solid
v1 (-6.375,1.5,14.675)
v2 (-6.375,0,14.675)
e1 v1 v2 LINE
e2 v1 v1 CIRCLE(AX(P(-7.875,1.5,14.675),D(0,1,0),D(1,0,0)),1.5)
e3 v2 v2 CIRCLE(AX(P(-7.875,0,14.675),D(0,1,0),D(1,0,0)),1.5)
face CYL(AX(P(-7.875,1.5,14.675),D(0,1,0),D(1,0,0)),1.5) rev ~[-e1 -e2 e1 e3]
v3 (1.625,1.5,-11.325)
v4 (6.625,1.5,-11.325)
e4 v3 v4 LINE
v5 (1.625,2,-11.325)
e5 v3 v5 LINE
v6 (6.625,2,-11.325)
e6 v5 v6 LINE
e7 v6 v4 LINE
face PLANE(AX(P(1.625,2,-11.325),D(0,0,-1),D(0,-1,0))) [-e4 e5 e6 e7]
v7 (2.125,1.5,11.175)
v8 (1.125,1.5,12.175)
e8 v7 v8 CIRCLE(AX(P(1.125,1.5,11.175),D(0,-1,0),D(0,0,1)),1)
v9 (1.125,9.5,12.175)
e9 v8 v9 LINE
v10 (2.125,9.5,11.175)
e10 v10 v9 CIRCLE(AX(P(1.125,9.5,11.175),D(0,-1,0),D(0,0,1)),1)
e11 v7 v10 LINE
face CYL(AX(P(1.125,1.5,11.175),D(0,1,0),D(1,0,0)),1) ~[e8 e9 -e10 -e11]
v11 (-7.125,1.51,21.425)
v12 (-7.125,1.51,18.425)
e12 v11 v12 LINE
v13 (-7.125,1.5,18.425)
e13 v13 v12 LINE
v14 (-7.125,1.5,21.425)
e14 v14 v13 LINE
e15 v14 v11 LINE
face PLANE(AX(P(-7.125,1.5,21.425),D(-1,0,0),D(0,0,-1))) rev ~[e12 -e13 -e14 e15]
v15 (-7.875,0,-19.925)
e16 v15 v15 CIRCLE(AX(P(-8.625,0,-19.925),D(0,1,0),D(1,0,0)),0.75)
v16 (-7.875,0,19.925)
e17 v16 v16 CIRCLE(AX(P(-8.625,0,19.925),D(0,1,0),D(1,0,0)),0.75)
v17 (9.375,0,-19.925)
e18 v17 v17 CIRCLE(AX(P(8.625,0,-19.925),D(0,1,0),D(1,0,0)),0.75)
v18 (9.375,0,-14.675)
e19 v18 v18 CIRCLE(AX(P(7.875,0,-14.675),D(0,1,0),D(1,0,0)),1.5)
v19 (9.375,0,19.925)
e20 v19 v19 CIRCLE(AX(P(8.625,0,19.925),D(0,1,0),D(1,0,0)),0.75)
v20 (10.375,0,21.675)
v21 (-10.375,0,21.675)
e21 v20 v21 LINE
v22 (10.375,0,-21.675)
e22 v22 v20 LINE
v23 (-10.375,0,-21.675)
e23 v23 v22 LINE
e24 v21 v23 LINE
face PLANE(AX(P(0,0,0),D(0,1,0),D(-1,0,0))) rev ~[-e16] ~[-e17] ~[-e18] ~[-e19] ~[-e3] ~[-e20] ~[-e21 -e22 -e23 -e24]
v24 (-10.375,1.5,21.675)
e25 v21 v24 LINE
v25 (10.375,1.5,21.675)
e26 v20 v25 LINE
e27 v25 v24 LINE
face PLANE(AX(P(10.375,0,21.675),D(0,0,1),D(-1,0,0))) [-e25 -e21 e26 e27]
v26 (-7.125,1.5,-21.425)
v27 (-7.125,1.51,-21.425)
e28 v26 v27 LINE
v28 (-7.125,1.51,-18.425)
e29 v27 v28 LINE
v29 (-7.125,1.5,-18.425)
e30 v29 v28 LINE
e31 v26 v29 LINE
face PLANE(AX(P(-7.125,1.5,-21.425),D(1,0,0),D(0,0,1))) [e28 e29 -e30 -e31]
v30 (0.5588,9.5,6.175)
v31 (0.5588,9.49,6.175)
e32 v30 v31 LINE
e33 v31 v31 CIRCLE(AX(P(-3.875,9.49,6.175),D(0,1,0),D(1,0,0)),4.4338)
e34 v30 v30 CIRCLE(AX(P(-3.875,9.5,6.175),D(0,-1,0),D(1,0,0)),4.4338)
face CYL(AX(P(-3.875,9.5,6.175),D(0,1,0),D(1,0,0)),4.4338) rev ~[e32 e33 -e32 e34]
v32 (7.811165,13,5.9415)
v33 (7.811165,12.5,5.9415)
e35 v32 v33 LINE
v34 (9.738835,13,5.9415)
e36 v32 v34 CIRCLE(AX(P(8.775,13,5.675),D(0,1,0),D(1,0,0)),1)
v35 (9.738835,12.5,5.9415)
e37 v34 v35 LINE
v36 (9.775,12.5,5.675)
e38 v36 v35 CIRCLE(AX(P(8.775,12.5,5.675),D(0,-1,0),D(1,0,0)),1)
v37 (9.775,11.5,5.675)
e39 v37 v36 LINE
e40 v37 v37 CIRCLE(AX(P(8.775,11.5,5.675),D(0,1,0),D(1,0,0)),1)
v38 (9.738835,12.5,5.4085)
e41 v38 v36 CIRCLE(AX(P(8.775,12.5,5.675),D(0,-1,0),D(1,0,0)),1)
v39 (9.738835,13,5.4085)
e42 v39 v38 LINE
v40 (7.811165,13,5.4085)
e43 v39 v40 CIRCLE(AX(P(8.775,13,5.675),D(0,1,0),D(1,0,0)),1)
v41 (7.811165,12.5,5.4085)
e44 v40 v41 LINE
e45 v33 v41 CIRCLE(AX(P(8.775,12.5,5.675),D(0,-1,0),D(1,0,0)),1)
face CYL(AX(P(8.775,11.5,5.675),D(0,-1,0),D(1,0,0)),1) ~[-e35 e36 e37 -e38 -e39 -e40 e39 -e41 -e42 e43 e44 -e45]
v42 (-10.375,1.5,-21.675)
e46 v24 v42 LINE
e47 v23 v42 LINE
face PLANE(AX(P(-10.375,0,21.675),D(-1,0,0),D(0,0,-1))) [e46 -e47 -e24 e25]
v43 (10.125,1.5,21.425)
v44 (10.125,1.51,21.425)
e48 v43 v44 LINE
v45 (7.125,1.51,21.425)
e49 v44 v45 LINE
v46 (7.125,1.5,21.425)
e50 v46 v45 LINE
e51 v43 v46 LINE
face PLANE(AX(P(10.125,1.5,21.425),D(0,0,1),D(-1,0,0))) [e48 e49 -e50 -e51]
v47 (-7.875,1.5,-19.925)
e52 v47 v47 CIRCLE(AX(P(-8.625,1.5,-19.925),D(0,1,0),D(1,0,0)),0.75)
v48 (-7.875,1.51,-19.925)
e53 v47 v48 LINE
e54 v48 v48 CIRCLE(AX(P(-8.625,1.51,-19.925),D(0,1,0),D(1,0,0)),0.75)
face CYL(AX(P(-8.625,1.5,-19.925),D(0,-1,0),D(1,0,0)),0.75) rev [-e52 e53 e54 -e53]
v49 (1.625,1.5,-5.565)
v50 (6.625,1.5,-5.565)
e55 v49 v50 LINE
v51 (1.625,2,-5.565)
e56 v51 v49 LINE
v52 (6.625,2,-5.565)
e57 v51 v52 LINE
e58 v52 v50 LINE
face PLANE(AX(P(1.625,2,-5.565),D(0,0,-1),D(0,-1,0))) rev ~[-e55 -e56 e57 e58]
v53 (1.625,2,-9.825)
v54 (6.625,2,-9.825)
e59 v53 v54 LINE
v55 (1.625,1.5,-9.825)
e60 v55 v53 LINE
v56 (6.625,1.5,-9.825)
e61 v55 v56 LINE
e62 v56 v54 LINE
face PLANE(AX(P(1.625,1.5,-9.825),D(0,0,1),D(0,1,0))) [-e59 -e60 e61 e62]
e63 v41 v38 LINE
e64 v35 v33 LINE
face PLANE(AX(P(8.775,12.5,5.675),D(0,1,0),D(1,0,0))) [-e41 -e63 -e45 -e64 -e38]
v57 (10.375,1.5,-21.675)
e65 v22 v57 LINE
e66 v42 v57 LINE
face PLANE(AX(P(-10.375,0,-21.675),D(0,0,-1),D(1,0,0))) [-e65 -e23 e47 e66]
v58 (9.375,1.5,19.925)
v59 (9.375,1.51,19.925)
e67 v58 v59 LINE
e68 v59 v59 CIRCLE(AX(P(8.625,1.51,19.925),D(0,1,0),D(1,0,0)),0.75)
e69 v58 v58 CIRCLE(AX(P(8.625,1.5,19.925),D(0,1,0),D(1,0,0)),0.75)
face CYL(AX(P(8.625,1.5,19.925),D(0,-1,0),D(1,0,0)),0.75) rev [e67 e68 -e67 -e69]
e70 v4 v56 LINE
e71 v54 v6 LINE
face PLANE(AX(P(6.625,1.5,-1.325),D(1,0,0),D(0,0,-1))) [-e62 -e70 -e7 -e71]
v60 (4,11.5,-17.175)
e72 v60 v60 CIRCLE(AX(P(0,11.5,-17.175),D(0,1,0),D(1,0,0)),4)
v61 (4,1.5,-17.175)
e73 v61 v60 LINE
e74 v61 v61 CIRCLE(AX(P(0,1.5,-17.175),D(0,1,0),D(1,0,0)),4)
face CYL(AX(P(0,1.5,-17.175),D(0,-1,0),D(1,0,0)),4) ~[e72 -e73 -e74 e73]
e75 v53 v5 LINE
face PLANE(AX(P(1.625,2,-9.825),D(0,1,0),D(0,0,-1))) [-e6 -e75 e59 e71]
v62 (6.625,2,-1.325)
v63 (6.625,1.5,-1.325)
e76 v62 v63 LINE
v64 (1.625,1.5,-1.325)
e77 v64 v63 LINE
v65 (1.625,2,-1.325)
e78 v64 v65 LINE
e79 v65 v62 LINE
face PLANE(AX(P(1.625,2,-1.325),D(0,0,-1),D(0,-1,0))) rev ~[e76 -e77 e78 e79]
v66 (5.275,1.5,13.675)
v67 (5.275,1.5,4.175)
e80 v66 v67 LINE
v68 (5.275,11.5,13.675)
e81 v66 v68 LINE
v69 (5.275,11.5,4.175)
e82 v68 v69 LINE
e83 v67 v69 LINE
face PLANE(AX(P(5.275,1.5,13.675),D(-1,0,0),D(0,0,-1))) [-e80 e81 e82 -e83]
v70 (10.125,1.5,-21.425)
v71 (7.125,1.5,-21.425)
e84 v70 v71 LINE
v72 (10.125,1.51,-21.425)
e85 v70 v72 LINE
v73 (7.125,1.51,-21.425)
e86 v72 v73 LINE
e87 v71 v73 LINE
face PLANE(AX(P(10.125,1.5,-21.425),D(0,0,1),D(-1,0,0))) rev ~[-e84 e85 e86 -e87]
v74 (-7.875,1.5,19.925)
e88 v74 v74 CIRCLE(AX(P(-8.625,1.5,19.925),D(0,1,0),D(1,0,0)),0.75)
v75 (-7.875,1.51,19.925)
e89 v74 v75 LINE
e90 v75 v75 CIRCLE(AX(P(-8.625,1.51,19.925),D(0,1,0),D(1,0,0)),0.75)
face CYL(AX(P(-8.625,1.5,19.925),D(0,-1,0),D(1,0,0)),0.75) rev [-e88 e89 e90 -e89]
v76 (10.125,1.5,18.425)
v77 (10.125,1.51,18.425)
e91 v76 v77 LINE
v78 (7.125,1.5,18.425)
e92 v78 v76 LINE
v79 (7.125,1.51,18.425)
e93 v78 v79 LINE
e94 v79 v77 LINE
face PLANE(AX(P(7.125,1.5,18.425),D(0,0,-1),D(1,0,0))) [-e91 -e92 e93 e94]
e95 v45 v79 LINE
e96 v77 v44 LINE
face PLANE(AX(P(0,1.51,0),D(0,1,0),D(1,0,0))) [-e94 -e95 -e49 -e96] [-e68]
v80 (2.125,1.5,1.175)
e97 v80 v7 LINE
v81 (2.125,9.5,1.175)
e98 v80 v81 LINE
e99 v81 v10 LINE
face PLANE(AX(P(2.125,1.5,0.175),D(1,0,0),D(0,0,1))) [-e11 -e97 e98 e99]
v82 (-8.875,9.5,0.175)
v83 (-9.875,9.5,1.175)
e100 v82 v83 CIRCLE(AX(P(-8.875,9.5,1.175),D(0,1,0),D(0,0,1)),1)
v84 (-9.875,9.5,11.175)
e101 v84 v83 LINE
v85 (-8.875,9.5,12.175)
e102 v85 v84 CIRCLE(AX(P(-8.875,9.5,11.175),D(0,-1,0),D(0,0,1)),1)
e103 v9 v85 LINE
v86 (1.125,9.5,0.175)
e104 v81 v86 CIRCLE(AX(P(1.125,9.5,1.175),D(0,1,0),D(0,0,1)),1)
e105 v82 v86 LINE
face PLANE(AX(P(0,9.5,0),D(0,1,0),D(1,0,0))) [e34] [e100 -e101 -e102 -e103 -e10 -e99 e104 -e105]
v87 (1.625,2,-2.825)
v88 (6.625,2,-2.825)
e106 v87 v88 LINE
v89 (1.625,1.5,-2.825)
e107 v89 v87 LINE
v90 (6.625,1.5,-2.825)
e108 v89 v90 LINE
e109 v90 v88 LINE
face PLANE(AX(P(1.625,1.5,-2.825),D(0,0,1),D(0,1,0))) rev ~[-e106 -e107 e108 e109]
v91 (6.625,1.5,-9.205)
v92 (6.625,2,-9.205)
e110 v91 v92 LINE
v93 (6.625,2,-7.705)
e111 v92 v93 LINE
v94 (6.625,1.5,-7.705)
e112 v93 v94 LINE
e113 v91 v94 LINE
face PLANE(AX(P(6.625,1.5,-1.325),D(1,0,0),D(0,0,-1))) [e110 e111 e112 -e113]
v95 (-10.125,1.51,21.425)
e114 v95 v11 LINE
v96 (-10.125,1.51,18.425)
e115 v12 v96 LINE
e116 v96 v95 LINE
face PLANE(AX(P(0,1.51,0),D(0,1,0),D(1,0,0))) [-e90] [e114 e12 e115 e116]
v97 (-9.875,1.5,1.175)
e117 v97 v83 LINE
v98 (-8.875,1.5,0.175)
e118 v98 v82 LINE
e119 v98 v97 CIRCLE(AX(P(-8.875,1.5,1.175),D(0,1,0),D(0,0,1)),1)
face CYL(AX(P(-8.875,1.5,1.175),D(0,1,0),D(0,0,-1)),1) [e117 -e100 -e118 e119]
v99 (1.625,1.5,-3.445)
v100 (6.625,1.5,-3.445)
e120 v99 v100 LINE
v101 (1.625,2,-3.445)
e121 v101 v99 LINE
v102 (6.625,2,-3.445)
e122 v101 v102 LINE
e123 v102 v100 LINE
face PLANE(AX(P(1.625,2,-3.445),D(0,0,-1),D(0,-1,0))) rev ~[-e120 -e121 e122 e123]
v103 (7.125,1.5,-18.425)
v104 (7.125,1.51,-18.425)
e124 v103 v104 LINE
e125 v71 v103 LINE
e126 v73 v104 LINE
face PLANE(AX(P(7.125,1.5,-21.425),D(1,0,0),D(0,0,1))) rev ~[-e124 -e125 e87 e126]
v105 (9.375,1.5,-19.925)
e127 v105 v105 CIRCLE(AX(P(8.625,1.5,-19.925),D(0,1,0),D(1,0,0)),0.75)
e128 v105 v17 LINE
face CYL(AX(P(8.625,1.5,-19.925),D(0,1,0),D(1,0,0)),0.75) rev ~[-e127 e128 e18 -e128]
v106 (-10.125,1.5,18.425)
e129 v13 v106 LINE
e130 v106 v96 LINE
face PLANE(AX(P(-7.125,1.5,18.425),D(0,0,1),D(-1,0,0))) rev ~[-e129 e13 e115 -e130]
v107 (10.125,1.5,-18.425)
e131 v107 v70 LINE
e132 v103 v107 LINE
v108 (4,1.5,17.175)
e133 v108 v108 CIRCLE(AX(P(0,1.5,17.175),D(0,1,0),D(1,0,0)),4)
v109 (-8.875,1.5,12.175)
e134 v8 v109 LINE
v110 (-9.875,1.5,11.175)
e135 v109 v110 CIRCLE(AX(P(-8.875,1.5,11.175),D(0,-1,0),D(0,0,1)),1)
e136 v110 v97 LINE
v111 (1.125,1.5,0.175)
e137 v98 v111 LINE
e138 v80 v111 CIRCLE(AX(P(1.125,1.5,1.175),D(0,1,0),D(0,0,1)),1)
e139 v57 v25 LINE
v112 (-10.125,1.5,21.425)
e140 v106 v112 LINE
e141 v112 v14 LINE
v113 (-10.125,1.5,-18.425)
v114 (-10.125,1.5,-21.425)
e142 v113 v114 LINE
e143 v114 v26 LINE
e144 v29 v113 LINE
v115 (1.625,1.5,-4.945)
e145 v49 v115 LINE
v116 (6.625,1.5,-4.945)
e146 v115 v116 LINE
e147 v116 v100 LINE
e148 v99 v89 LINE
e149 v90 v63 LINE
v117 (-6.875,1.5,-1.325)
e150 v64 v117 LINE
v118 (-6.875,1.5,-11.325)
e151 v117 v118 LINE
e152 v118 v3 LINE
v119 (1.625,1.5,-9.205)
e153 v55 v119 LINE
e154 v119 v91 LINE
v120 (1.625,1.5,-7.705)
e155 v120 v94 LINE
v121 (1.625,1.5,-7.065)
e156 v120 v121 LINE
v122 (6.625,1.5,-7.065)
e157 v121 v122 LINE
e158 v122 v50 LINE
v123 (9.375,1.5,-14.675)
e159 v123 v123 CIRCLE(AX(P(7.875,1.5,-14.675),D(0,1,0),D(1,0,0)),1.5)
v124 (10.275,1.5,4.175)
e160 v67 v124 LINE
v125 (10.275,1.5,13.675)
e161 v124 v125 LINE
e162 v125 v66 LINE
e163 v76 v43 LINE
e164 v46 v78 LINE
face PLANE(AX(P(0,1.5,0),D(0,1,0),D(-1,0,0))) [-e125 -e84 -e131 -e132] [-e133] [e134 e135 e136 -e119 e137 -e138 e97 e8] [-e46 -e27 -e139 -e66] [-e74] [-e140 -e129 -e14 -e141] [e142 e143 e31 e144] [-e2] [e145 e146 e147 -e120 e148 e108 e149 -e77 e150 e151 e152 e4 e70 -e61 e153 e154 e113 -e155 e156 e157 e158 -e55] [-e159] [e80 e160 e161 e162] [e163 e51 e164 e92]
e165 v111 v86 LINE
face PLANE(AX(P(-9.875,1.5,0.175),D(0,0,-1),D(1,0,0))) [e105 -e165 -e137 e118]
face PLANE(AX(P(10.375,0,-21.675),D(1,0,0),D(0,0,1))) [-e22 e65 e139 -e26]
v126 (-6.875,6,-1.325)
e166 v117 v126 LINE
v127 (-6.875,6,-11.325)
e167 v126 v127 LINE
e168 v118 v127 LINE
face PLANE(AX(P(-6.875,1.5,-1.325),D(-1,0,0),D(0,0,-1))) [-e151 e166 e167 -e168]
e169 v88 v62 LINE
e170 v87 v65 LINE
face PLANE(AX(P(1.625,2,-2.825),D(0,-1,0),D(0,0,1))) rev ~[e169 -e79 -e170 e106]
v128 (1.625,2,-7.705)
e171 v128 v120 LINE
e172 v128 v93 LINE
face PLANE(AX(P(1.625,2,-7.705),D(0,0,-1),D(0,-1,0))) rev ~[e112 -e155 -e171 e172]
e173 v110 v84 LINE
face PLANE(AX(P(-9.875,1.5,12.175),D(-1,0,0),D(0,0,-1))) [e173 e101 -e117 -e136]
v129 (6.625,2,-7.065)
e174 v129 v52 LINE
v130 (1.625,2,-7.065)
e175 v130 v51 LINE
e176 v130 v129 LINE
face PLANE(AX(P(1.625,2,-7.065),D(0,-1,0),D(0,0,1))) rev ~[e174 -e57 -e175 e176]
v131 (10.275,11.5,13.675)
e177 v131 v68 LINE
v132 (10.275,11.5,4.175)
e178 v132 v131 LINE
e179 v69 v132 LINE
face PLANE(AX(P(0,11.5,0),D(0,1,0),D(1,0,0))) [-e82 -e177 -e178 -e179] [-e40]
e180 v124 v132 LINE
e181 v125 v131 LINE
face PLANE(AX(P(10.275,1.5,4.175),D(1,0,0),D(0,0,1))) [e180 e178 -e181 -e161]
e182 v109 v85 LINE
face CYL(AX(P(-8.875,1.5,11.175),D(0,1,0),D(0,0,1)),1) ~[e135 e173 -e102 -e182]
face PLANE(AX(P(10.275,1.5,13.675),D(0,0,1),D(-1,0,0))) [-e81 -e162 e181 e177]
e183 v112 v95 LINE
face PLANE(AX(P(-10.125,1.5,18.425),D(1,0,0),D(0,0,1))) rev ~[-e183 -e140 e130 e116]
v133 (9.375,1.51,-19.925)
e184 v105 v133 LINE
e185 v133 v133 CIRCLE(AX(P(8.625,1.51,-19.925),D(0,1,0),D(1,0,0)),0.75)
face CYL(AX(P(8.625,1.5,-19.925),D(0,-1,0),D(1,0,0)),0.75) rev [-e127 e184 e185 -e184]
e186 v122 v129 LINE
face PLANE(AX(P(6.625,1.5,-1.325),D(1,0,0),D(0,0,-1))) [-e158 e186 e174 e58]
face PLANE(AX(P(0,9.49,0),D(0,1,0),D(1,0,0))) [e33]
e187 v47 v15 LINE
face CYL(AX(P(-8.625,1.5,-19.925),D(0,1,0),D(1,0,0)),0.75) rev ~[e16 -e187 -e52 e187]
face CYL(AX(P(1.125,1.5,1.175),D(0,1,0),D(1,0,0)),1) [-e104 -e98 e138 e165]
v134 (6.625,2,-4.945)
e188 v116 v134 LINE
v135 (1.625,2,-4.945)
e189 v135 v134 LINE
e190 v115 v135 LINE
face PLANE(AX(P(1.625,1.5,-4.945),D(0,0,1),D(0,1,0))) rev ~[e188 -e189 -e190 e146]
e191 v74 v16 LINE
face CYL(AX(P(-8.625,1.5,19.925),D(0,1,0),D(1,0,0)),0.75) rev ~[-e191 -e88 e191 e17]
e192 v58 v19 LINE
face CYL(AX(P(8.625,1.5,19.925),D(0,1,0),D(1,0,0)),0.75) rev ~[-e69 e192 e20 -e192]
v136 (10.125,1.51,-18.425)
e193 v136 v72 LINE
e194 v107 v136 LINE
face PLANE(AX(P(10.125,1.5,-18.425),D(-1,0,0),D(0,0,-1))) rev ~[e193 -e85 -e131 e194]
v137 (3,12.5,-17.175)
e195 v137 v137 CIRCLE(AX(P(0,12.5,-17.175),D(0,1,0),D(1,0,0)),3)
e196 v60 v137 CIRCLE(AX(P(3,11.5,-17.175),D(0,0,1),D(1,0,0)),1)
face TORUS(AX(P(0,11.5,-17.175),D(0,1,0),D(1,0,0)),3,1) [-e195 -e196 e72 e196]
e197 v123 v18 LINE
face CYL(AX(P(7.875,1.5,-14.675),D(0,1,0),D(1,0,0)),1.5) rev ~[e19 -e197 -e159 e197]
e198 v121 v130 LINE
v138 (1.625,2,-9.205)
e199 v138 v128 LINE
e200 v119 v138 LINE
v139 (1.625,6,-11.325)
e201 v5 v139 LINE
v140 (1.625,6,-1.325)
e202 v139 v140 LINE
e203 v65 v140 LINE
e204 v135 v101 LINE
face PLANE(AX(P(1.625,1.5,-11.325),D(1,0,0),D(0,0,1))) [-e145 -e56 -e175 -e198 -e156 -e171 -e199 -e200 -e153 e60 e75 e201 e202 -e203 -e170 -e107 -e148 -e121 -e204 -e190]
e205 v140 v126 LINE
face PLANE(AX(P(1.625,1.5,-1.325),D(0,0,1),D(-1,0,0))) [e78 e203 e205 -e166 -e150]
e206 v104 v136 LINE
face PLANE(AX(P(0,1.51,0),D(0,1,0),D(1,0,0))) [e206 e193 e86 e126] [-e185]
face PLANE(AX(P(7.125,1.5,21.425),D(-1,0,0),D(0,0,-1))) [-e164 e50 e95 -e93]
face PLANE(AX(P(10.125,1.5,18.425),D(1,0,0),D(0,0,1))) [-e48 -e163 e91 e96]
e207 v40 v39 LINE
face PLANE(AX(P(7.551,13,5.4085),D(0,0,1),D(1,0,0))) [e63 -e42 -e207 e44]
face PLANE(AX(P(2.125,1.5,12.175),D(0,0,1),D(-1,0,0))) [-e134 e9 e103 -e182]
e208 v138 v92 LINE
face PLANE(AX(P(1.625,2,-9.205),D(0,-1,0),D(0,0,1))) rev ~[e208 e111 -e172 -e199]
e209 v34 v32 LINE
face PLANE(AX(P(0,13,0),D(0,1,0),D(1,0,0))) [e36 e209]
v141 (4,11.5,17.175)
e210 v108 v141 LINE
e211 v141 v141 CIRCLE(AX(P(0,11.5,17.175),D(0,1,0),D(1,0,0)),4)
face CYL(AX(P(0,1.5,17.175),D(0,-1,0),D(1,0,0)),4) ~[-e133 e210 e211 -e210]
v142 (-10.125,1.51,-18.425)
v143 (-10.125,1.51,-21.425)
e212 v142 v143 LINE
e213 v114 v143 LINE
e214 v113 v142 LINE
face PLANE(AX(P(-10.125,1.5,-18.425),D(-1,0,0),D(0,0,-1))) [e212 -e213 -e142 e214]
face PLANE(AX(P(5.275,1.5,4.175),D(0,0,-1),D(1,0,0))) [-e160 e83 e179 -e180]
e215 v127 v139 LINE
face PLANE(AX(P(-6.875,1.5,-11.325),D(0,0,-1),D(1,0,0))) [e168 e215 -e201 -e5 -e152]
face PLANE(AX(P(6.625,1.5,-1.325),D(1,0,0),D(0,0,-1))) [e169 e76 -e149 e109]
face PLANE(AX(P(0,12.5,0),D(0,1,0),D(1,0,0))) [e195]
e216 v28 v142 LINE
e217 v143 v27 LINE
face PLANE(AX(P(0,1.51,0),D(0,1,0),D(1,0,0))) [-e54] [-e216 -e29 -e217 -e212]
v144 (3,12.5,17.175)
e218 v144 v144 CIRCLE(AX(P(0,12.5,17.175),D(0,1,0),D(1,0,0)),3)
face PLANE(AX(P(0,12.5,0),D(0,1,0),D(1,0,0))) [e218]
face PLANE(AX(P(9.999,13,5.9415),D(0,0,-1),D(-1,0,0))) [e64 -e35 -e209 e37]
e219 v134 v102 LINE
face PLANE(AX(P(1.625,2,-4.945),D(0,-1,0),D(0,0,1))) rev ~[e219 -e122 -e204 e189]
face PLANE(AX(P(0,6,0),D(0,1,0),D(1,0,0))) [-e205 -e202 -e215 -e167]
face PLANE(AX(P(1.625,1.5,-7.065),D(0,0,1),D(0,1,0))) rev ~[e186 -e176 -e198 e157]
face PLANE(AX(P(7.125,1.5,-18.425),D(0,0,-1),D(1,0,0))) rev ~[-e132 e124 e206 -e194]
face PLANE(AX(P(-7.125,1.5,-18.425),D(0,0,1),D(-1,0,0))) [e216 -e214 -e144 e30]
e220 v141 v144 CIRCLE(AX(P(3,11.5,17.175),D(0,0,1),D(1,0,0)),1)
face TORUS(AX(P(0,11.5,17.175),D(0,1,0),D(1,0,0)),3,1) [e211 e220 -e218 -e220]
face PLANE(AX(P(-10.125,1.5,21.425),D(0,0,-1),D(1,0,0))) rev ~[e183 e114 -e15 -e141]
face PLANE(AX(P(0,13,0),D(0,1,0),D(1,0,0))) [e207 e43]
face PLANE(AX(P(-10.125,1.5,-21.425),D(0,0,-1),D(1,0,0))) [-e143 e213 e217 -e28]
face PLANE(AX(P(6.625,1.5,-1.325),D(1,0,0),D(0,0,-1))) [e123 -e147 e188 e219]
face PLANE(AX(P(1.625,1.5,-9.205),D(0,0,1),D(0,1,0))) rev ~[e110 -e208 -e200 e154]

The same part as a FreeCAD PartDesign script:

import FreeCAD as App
import Part
import Sketcher


def edges_at(feature, points):
    """Names of the edges that pass closest to the given points."""
    edges = feature.Shape.Edges
    near = lambda p: min(range(len(edges)), key=lambda i: edges[i].distToShape(Part.Vertex(*p))[0])
    return sorted({f"Edge{near(p) + 1}" for p in points})

doc = App.newDocument("Part")
body = doc.addObject("PartDesign::Body", "Body")

# Sketch on XZ plane
sketch1 = doc.addObject("Sketcher::SketchObject", "Sketch")
body.addObject(sketch1)
sketch1.AttachmentSupport = (doc.XZ_Plane, [""])
sketch1.MapMode = "FlatFace"
sketch1.addGeometry(Part.LineSegment(App.Vector(-10, 22, 0), App.Vector(10, 22, 0)), False)
sketch1.addGeometry(Part.LineSegment(App.Vector(10, 22, 0), App.Vector(10, -22, 0)), False)
sketch1.addGeometry(Part.LineSegment(App.Vector(10, -22, 0), App.Vector(-10, -22, 0)), False)
sketch1.addGeometry(Part.LineSegment(App.Vector(-10, -22, 0), App.Vector(-10, 22, 0)), False)
sketch1.addConstraint(Sketcher.Constraint("Coincident", 0, 2, 1, 1))
sketch1.addConstraint(Sketcher.Constraint("Coincident", 1, 2, 2, 1))
sketch1.addConstraint(Sketcher.Constraint("Coincident", 2, 2, 3, 1))
sketch1.addConstraint(Sketcher.Constraint("Coincident", 3, 2, 0, 1))
sketch1.addConstraint(Sketcher.Constraint("Horizontal", 0))
sketch1.addConstraint(Sketcher.Constraint("Vertical", 1))
sketch1.addConstraint(Sketcher.Constraint("Horizontal", 2))
sketch1.addConstraint(Sketcher.Constraint("Vertical", 3))
sketch1.addConstraint(Sketcher.Constraint("Symmetric", 0, 2, 2, 2, -1, 1))
sketch1.addConstraint(Sketcher.Constraint("DistanceX", 0, 1, 0, 2, 20.75))
sketch1.addConstraint(Sketcher.Constraint("DistanceY", 1, 2, 1, 1, 43.35))
pad1 = doc.addObject("PartDesign::Pad", "Pad")
body.addObject(pad1)
pad1.Profile = sketch1
pad1.Length = 1.5
pad1.Reversed = True

# Sketch on XZ plane
sketch2 = doc.addObject("Sketcher::SketchObject", "Sketch001")
body.addObject(sketch2)
sketch2.AttachmentSupport = (doc.XZ_Plane, [""])
sketch2.MapMode = "FlatFace"
sketch2.AttachmentOffset = App.Placement(App.Vector(0, 0, -1.5), App.Rotation())
sketch2.addGeometry(Part.Circle(App.Vector(-8.6, 19.9, 0), App.Vector(0, 0, 1), 0.8), False)
sketch2.addGeometry(Part.Circle(App.Vector(-8.6, -19.9, 0), App.Vector(0, 0, 1), 0.8), False)
sketch2.addGeometry(Part.Circle(App.Vector(8.6, 19.9, 0), App.Vector(0, 0, 1), 0.8), False)
sketch2.addGeometry(Part.Circle(App.Vector(8.6, -19.9, 0), App.Vector(0, 0, 1), 0.8), False)
sketch2.addConstraint(Sketcher.Constraint("Equal", 0, 1))
sketch2.addConstraint(Sketcher.Constraint("Equal", 1, 2))
sketch2.addConstraint(Sketcher.Constraint("Equal", 2, 3))
sketch2.addConstraint(Sketcher.Constraint("Symmetric", 1, 3, 2, 3, -1, 1))
sketch2.addConstraint(Sketcher.Constraint("Symmetric", 0, 3, 3, 3, -1, 1))
sketch2.addConstraint(Sketcher.Constraint("Symmetric", 0, 3, 2, 3, -2))
sketch2.addConstraint(Sketcher.Constraint("Diameter", 0, 1.5))
sketch2.addConstraint(Sketcher.Constraint("DistanceY", 1, 3, 0, 3, 39.85))
sketch2.addConstraint(Sketcher.Constraint("DistanceX", 0, 3, 2, 3, 17.25))
pocket1 = doc.addObject("PartDesign::Pocket", "Pocket")
body.addObject(pocket1)
pocket1.Profile = sketch2
pocket1.Length = 1.5
pocket1.Reversed = True

# Sketch on XZ plane
sketch3 = doc.addObject("Sketcher::SketchObject", "Sketch002")
body.addObject(sketch3)
sketch3.AttachmentSupport = (doc.XZ_Plane, [""])
sketch3.MapMode = "FlatFace"
sketch3.AttachmentOffset = App.Placement(App.Vector(0, 0, -1.5), App.Rotation())
sketch3.addGeometry(Part.Circle(App.Vector(7.9, -14.7, 0), App.Vector(0, 0, 1), 1.5), False)
sketch3.addGeometry(Part.Circle(App.Vector(-7.9, 14.7, 0), App.Vector(0, 0, 1), 1.5), False)
sketch3.addConstraint(Sketcher.Constraint("Equal", 0, 1))
sketch3.addConstraint(Sketcher.Constraint("Symmetric", 0, 3, 1, 3, -1, 1))
sketch3.addConstraint(Sketcher.Constraint("Diameter", 0, 3.0))
sketch3.addConstraint(Sketcher.Constraint("DistanceX", 1, 3, 0, 3, 15.75))
sketch3.addConstraint(Sketcher.Constraint("DistanceY", 0, 3, 1, 3, 29.35))
pocket2 = doc.addObject("PartDesign::Pocket", "Pocket001")
body.addObject(pocket2)
pocket2.Profile = sketch3
pocket2.Type = "UpToFirst"
pocket2.Reversed = True

# Sketch on XZ plane
sketch4 = doc.addObject("Sketcher::SketchObject", "Sketch003")
body.addObject(sketch4)
sketch4.AttachmentSupport = (doc.XZ_Plane, [""])
sketch4.MapMode = "FlatFace"
sketch4.AttachmentOffset = App.Placement(App.Vector(0, 0, -1.5), App.Rotation())
sketch4.addGeometry(Part.LineSegment(App.Vector(-7.1, 21.4, 0), App.Vector(-7.1, 18.4, 0)), False)
sketch4.addGeometry(Part.LineSegment(App.Vector(-7.1, 18.4, 0), App.Vector(-10.1, 18.4, 0)), False)
sketch4.addGeometry(Part.LineSegment(App.Vector(-10.1, 18.4, 0), App.Vector(-10.1, 21.4, 0)), False)
sketch4.addGeometry(Part.LineSegment(App.Vector(-10.1, 21.4, 0), App.Vector(-7.1, 21.4, 0)), False)
sketch4.addGeometry(Part.Circle(App.Vector(-8.6, 19.9, 0), App.Vector(0, 0, 1), 0.8), False)
sketch4.addGeometry(Part.LineSegment(App.Vector(7.1, 21.4, 0), App.Vector(10.1, 21.4, 0)), False)
sketch4.addGeometry(Part.LineSegment(App.Vector(10.1, 21.4, 0), App.Vector(10.1, 18.4, 0)), False)
sketch4.addGeometry(Part.LineSegment(App.Vector(10.1, 18.4, 0), App.Vector(7.1, 18.4, 0)), False)
sketch4.addGeometry(Part.LineSegment(App.Vector(7.1, 18.4, 0), App.Vector(7.1, 21.4, 0)), False)
sketch4.addGeometry(Part.Circle(App.Vector(8.6, 19.9, 0), App.Vector(0, 0, 1), 0.8), False)
sketch4.addGeometry(Part.LineSegment(App.Vector(7.1, -21.4, 0), App.Vector(7.1, -18.4, 0)), False)
sketch4.addGeometry(Part.LineSegment(App.Vector(7.1, -18.4, 0), App.Vector(10.1, -18.4, 0)), False)
sketch4.addGeometry(Part.LineSegment(App.Vector(10.1, -18.4, 0), App.Vector(10.1, -21.4, 0)), False)
sketch4.addGeometry(Part.LineSegment(App.Vector(10.1, -21.4, 0), App.Vector(7.1, -21.4, 0)), False)
sketch4.addGeometry(Part.Circle(App.Vector(8.6, -19.9, 0), App.Vector(0, 0, 1), 0.8), False)
sketch4.addGeometry(Part.LineSegment(App.Vector(-7.1, -21.4, 0), App.Vector(-10.1, -21.4, 0)), False)
sketch4.addGeometry(Part.LineSegment(App.Vector(-10.1, -21.4, 0), App.Vector(-10.1, -18.4, 0)), False)
sketch4.addGeometry(Part.LineSegment(App.Vector(-10.1, -18.4, 0), App.Vector(-7.1, -18.4, 0)), False)
sketch4.addGeometry(Part.LineSegment(App.Vector(-7.1, -18.4, 0), App.Vector(-7.1, -21.4, 0)), False)
sketch4.addGeometry(Part.Circle(App.Vector(-8.6, -19.9, 0), App.Vector(0, 0, 1), 0.8), False)
sketch4.addConstraint(Sketcher.Constraint("Coincident", 0, 2, 1, 1))
sketch4.addConstraint(Sketcher.Constraint("Coincident", 1, 2, 2, 1))
sketch4.addConstraint(Sketcher.Constraint("Coincident", 2, 2, 3, 1))
sketch4.addConstraint(Sketcher.Constraint("Coincident", 3, 2, 0, 1))
sketch4.addConstraint(Sketcher.Constraint("Coincident", 5, 2, 6, 1))
sketch4.addConstraint(Sketcher.Constraint("Coincident", 6, 2, 7, 1))
sketch4.addConstraint(Sketcher.Constraint("Coincident", 7, 2, 8, 1))
sketch4.addConstraint(Sketcher.Constraint("Coincident", 8, 2, 5, 1))
sketch4.addConstraint(Sketcher.Constraint("Coincident", 10, 2, 11, 1))
sketch4.addConstraint(Sketcher.Constraint("Coincident", 11, 2, 12, 1))
sketch4.addConstraint(Sketcher.Constraint("Coincident", 12, 2, 13, 1))
sketch4.addConstraint(Sketcher.Constraint("Coincident", 13, 2, 10, 1))
sketch4.addConstraint(Sketcher.Constraint("Coincident", 15, 2, 16, 1))
sketch4.addConstraint(Sketcher.Constraint("Coincident", 16, 2, 17, 1))
sketch4.addConstraint(Sketcher.Constraint("Coincident", 17, 2, 18, 1))
sketch4.addConstraint(Sketcher.Constraint("Coincident", 18, 2, 15, 1))
sketch4.addConstraint(Sketcher.Constraint("Vertical", 0))
sketch4.addConstraint(Sketcher.Constraint("Horizontal", 1))
sketch4.addConstraint(Sketcher.Constraint("Vertical", 2))
sketch4.addConstraint(Sketcher.Constraint("Horizontal", 3))
sketch4.addConstraint(Sketcher.Constraint("Horizontal", 5))
sketch4.addConstraint(Sketcher.Constraint("Vertical", 6))
sketch4.addConstraint(Sketcher.Constraint("Horizontal", 7))
sketch4.addConstraint(Sketcher.Constraint("Vertical", 8))
sketch4.addConstraint(Sketcher.Constraint("Vertical", 10))
sketch4.addConstraint(Sketcher.Constraint("Horizontal", 11))
sketch4.addConstraint(Sketcher.Constraint("Vertical", 12))
sketch4.addConstraint(Sketcher.Constraint("Horizontal", 13))
sketch4.addConstraint(Sketcher.Constraint("Horizontal", 15))
sketch4.addConstraint(Sketcher.Constraint("Vertical", 16))
sketch4.addConstraint(Sketcher.Constraint("Horizontal", 17))
sketch4.addConstraint(Sketcher.Constraint("Vertical", 18))
sketch4.addConstraint(Sketcher.Constraint("Equal", 4, 9))
sketch4.addConstraint(Sketcher.Constraint("Equal", 9, 14))
sketch4.addConstraint(Sketcher.Constraint("Equal", 14, 19))
sketch4.addConstraint(Sketcher.Constraint("Symmetric", 4, 3, 14, 3, -1, 1))
sketch4.addConstraint(Sketcher.Constraint("Symmetric", 9, 3, 19, 3, -1, 1))
sketch4.addConstraint(Sketcher.Constraint("Symmetric", 0, 2, 10, 2, -1, 1))
sketch4.addConstraint(Sketcher.Constraint("Symmetric", 2, 2, 12, 2, -1, 1))
sketch4.addConstraint(Sketcher.Constraint("Symmetric", 5, 2, 15, 2, -1, 1))
sketch4.addConstraint(Sketcher.Constraint("Symmetric", 7, 2, 17, 2, -1, 1))
sketch4.addConstraint(Sketcher.Constraint("Symmetric", 4, 3, 9, 3, -2))
sketch4.addConstraint(Sketcher.Constraint("Symmetric", 2, 2, 5, 2, -2))
sketch4.addConstraint(Sketcher.Constraint("Symmetric", 0, 2, 7, 2, -2))
sketch4.addConstraint(Sketcher.Constraint("Equal", 17, 0))
sketch4.addConstraint(Sketcher.Constraint("DistanceX", 1, 2, 1, 1, 3.0))
sketch4.addConstraint(Sketcher.Constraint("Diameter", 4, 1.5))
sketch4.addConstraint(Sketcher.Constraint("DistanceX", 4, 3, 0, 2, 1.5))
sketch4.addConstraint(Sketcher.Constraint("DistanceY", 0, 2, 4, 3, 1.5))
sketch4.addConstraint(Sketcher.Constraint("DistanceX", 4, 3, 9, 3, 17.25))
sketch4.addConstraint(Sketcher.Constraint("DistanceY", 14, 3, 9, 3, 39.85))
pad2 = doc.addObject("PartDesign::Pad", "Pad001")
body.addObject(pad2)
pad2.Profile = sketch4
pad2.Length = 0.01
pad2.Reversed = True

# Sketch on XZ plane
sketch5 = doc.addObject("Sketcher::SketchObject", "Sketch004")
body.addObject(sketch5)
sketch5.AttachmentSupport = (doc.XZ_Plane, [""])
sketch5.MapMode = "FlatFace"
sketch5.AttachmentOffset = App.Placement(App.Vector(0, 0, -1.5), App.Rotation())
sketch5.addGeometry(Part.Circle(App.Vector(0, -17.2, 0), App.Vector(0, 0, 1), 4), False)
sketch5.addConstraint(Sketcher.Constraint("PointOnObject", 0, 3, -2))
sketch5.addConstraint(Sketcher.Constraint("Diameter", 0, 8.0))
sketch5.addConstraint(Sketcher.Constraint("DistanceY", 0, 3, -1, 1, 17.175))
pad3 = doc.addObject("PartDesign::Pad", "Pad002")
body.addObject(pad3)
pad3.Profile = sketch5
pad3.Length = 11
pad3.Reversed = True

# Sketch on XZ plane
sketch6 = doc.addObject("Sketcher::SketchObject", "Sketch005")
body.addObject(sketch6)
sketch6.AttachmentSupport = (doc.XZ_Plane, [""])
sketch6.MapMode = "FlatFace"
sketch6.AttachmentOffset = App.Placement(App.Vector(0, 0, -1.5), App.Rotation())
sketch6.addGeometry(Part.Circle(App.Vector(0, 17.2, 0), App.Vector(0, 0, 1), 4), False)
sketch6.addConstraint(Sketcher.Constraint("PointOnObject", 0, 3, -2))
sketch6.addConstraint(Sketcher.Constraint("Diameter", 0, 8.0))
sketch6.addConstraint(Sketcher.Constraint("DistanceY", -1, 1, 0, 3, 17.175))
pad4 = doc.addObject("PartDesign::Pad", "Pad003")
body.addObject(pad4)
pad4.Profile = sketch6
pad4.Length = 11
pad4.Reversed = True

# Sketch on XZ plane
sketch7 = doc.addObject("Sketcher::SketchObject", "Sketch006")
body.addObject(sketch7)
sketch7.AttachmentSupport = (doc.XZ_Plane, [""])
sketch7.MapMode = "FlatFace"
sketch7.AttachmentOffset = App.Placement(App.Vector(0, 0, -1.5), App.Rotation())
sketch7.addGeometry(Part.LineSegment(App.Vector(-10, 12, 0), App.Vector(2, 12, 0)), False)
sketch7.addGeometry(Part.LineSegment(App.Vector(2, 12, 0), App.Vector(2, 0, 0)), False)
sketch7.addGeometry(Part.LineSegment(App.Vector(2, 0, 0), App.Vector(-10, 0, 0)), False)
sketch7.addGeometry(Part.LineSegment(App.Vector(-10, 0, 0), App.Vector(-10, 12, 0)), False)
sketch7.addConstraint(Sketcher.Constraint("Coincident", 0, 2, 1, 1))
sketch7.addConstraint(Sketcher.Constraint("Coincident", 1, 2, 2, 1))
sketch7.addConstraint(Sketcher.Constraint("Coincident", 2, 2, 3, 1))
sketch7.addConstraint(Sketcher.Constraint("Coincident", 3, 2, 0, 1))
sketch7.addConstraint(Sketcher.Constraint("Horizontal", 0))
sketch7.addConstraint(Sketcher.Constraint("Vertical", 1))
sketch7.addConstraint(Sketcher.Constraint("Horizontal", 2))
sketch7.addConstraint(Sketcher.Constraint("Vertical", 3))
sketch7.addConstraint(Sketcher.Constraint("Equal", 2, 1))
sketch7.addConstraint(Sketcher.Constraint("DistanceX", 0, 1, 0, 2, 12.0))
sketch7.addConstraint(Sketcher.Constraint("DistanceX", -1, 1, 0, 2, 2.125))
sketch7.addConstraint(Sketcher.Constraint("DistanceY", -1, 1, 0, 2, 12.175))
pad5 = doc.addObject("PartDesign::Pad", "Pad004")
body.addObject(pad5)
pad5.Profile = sketch7
pad5.Length = 8
pad5.Reversed = True

# Sketch on XZ plane
sketch8 = doc.addObject("Sketcher::SketchObject", "Sketch007")
body.addObject(sketch8)
sketch8.AttachmentSupport = (doc.XZ_Plane, [""])
sketch8.MapMode = "FlatFace"
sketch8.AttachmentOffset = App.Placement(App.Vector(0, 0, -9.5), App.Rotation())
sketch8.addGeometry(Part.Circle(App.Vector(-3.9, 6.2, 0), App.Vector(0, 0, 1), 4.4), False)
sketch8.addConstraint(Sketcher.Constraint("Diameter", 0, 8.8676))
sketch8.addConstraint(Sketcher.Constraint("DistanceX", 0, 3, -1, 1, 3.875))
sketch8.addConstraint(Sketcher.Constraint("DistanceY", -1, 1, 0, 3, 6.175))
pocket3 = doc.addObject("PartDesign::Pocket", "Pocket002")
body.addObject(pocket3)
pocket3.Profile = sketch8
pocket3.Length = 0.01
pocket3.Reversed = True

# Sketch on XZ plane
sketch9 = doc.addObject("Sketcher::SketchObject", "Sketch008")
body.addObject(sketch9)
sketch9.AttachmentSupport = (doc.XZ_Plane, [""])
sketch9.MapMode = "FlatFace"
sketch9.AttachmentOffset = App.Placement(App.Vector(0, 0, -1.5), App.Rotation())
sketch9.addGeometry(Part.LineSegment(App.Vector(5, 14, 0), App.Vector(10, 14, 0)), False)
sketch9.addGeometry(Part.LineSegment(App.Vector(10, 14, 0), App.Vector(10, 4, 0)), False)
sketch9.addGeometry(Part.LineSegment(App.Vector(10, 4, 0), App.Vector(5, 4, 0)), False)
sketch9.addGeometry(Part.LineSegment(App.Vector(5, 4, 0), App.Vector(5, 14, 0)), False)
sketch9.addConstraint(Sketcher.Constraint("Coincident", 0, 2, 1, 1))
sketch9.addConstraint(Sketcher.Constraint("Coincident", 1, 2, 2, 1))
sketch9.addConstraint(Sketcher.Constraint("Coincident", 2, 2, 3, 1))
sketch9.addConstraint(Sketcher.Constraint("Coincident", 3, 2, 0, 1))
sketch9.addConstraint(Sketcher.Constraint("Horizontal", 0))
sketch9.addConstraint(Sketcher.Constraint("Vertical", 1))
sketch9.addConstraint(Sketcher.Constraint("Horizontal", 2))
sketch9.addConstraint(Sketcher.Constraint("Vertical", 3))
sketch9.addConstraint(Sketcher.Constraint("DistanceX", 0, 1, 0, 2, 5.0))
sketch9.addConstraint(Sketcher.Constraint("DistanceY", 1, 2, 1, 1, 9.5))
sketch9.addConstraint(Sketcher.Constraint("DistanceX", -1, 1, 0, 2, 10.275))
sketch9.addConstraint(Sketcher.Constraint("DistanceY", -1, 1, 0, 2, 13.675))
pad6 = doc.addObject("PartDesign::Pad", "Pad005")
body.addObject(pad6)
pad6.Profile = sketch9
pad6.Length = 10
pad6.Reversed = True

# Sketch on XZ plane
sketch10 = doc.addObject("Sketcher::SketchObject", "Sketch009")
body.addObject(sketch10)
sketch10.AttachmentSupport = (doc.XZ_Plane, [""])
sketch10.MapMode = "FlatFace"
sketch10.AttachmentOffset = App.Placement(App.Vector(0, 0, -11.5), App.Rotation())
sketch10.addGeometry(Part.Circle(App.Vector(8.8, 5.7, 0), App.Vector(0, 0, 1), 1), False)
sketch10.addConstraint(Sketcher.Constraint("Diameter", 0, 2.0))
sketch10.addConstraint(Sketcher.Constraint("DistanceX", -1, 1, 0, 3, 8.775))
sketch10.addConstraint(Sketcher.Constraint("DistanceY", -1, 1, 0, 3, 5.675))
pad7 = doc.addObject("PartDesign::Pad", "Pad006")
body.addObject(pad7)
pad7.Profile = sketch10
pad7.Length = 1.5
pad7.Reversed = True

# Sketch on XZ plane
sketch11 = doc.addObject("Sketcher::SketchObject", "Sketch010")
body.addObject(sketch11)
sketch11.AttachmentSupport = (doc.XZ_Plane, [""])
sketch11.MapMode = "FlatFace"
sketch11.AttachmentOffset = App.Placement(App.Vector(0, 0, -13), App.Rotation())
sketch11.addGeometry(Part.LineSegment(App.Vector(7.6, 5.9, 0), App.Vector(10, 5.9, 0)), False)
sketch11.addGeometry(Part.LineSegment(App.Vector(10, 5.9, 0), App.Vector(10, 5.4, 0)), False)
sketch11.addGeometry(Part.LineSegment(App.Vector(10, 5.4, 0), App.Vector(7.6, 5.4, 0)), False)
sketch11.addGeometry(Part.LineSegment(App.Vector(7.6, 5.4, 0), App.Vector(7.6, 5.9, 0)), False)
sketch11.addConstraint(Sketcher.Constraint("Coincident", 0, 2, 1, 1))
sketch11.addConstraint(Sketcher.Constraint("Coincident", 1, 2, 2, 1))
sketch11.addConstraint(Sketcher.Constraint("Coincident", 2, 2, 3, 1))
sketch11.addConstraint(Sketcher.Constraint("Coincident", 3, 2, 0, 1))
sketch11.addConstraint(Sketcher.Constraint("Horizontal", 0))
sketch11.addConstraint(Sketcher.Constraint("Vertical", 1))
sketch11.addConstraint(Sketcher.Constraint("Horizontal", 2))
sketch11.addConstraint(Sketcher.Constraint("Vertical", 3))
sketch11.addConstraint(Sketcher.Constraint("DistanceX", 0, 1, 0, 2, 2.448))
sketch11.addConstraint(Sketcher.Constraint("DistanceY", 1, 2, 1, 1, 0.533))
sketch11.addConstraint(Sketcher.Constraint("DistanceX", -1, 1, 0, 2, 9.999))
sketch11.addConstraint(Sketcher.Constraint("DistanceY", -1, 1, 0, 2, 5.9415))
pocket4 = doc.addObject("PartDesign::Pocket", "Pocket003")
body.addObject(pocket4)
pocket4.Profile = sketch11
pocket4.Length = 0.5
pocket4.Reversed = True

# Sketch on XZ plane
sketch12 = doc.addObject("Sketcher::SketchObject", "Sketch011")
body.addObject(sketch12)
sketch12.AttachmentSupport = (doc.XZ_Plane, [""])
sketch12.MapMode = "FlatFace"
sketch12.AttachmentOffset = App.Placement(App.Vector(0, 0, -1.5), App.Rotation())
sketch12.addGeometry(Part.LineSegment(App.Vector(-7, -1, 0), App.Vector(2, -1, 0)), False)
sketch12.addGeometry(Part.LineSegment(App.Vector(2, -1, 0), App.Vector(2, -11, 0)), False)
sketch12.addGeometry(Part.LineSegment(App.Vector(2, -11, 0), App.Vector(-7, -11, 0)), False)
sketch12.addGeometry(Part.LineSegment(App.Vector(-7, -11, 0), App.Vector(-7, -1, 0)), False)
sketch12.addConstraint(Sketcher.Constraint("Coincident", 0, 2, 1, 1))
sketch12.addConstraint(Sketcher.Constraint("Coincident", 1, 2, 2, 1))
sketch12.addConstraint(Sketcher.Constraint("Coincident", 2, 2, 3, 1))
sketch12.addConstraint(Sketcher.Constraint("Coincident", 3, 2, 0, 1))
sketch12.addConstraint(Sketcher.Constraint("Horizontal", 0))
sketch12.addConstraint(Sketcher.Constraint("Vertical", 1))
sketch12.addConstraint(Sketcher.Constraint("Horizontal", 2))
sketch12.addConstraint(Sketcher.Constraint("Vertical", 3))
sketch12.addConstraint(Sketcher.Constraint("DistanceY", 1, 2, 1, 1, 10.0))
sketch12.addConstraint(Sketcher.Constraint("DistanceX", 0, 1, 0, 2, 8.5))
sketch12.addConstraint(Sketcher.Constraint("DistanceX", -1, 1, 0, 2, 1.625))
sketch12.addConstraint(Sketcher.Constraint("DistanceY", 0, 2, -1, 1, 1.325))
pad8 = doc.addObject("PartDesign::Pad", "Pad007")
body.addObject(pad8)
pad8.Profile = sketch12
pad8.Length = 4.5
pad8.Reversed = True

# Sketch on YZ plane
sketch13 = doc.addObject("Sketcher::SketchObject", "Sketch012")
body.addObject(sketch13)
sketch13.AttachmentSupport = (doc.YZ_Plane, [""])
sketch13.MapMode = "FlatFace"
sketch13.AttachmentOffset = App.Placement(App.Vector(0, 0, 1.625), App.Rotation())
sketch13.addGeometry(Part.LineSegment(App.Vector(1.5, -1.3, 0), App.Vector(1.5, -2.8, 0)), False)
sketch13.addGeometry(Part.LineSegment(App.Vector(1.5, -2.8, 0), App.Vector(2, -2.8, 0)), False)
sketch13.addGeometry(Part.LineSegment(App.Vector(2, -2.8, 0), App.Vector(2, -1.3, 0)), False)
sketch13.addGeometry(Part.LineSegment(App.Vector(2, -1.3, 0), App.Vector(1.5, -1.3, 0)), False)
sketch13.addGeometry(Part.LineSegment(App.Vector(1.5, -3.4, 0), App.Vector(1.5, -4.9, 0)), False)
sketch13.addGeometry(Part.LineSegment(App.Vector(1.5, -4.9, 0), App.Vector(2, -4.9, 0)), False)
sketch13.addGeometry(Part.LineSegment(App.Vector(2, -4.9, 0), App.Vector(2, -3.4, 0)), False)
sketch13.addGeometry(Part.LineSegment(App.Vector(2, -3.4, 0), App.Vector(1.5, -3.4, 0)), False)
sketch13.addGeometry(Part.LineSegment(App.Vector(1.5, -5.6, 0), App.Vector(1.5, -7.1, 0)), False)
sketch13.addGeometry(Part.LineSegment(App.Vector(1.5, -7.1, 0), App.Vector(2, -7.1, 0)), False)
sketch13.addGeometry(Part.LineSegment(App.Vector(2, -7.1, 0), App.Vector(2, -5.6, 0)), False)
sketch13.addGeometry(Part.LineSegment(App.Vector(2, -5.6, 0), App.Vector(1.5, -5.6, 0)), False)
sketch13.addGeometry(Part.LineSegment(App.Vector(1.5, -7.7, 0), App.Vector(1.5, -9.2, 0)), False)
sketch13.addGeometry(Part.LineSegment(App.Vector(1.5, -9.2, 0), App.Vector(2, -9.2, 0)), False)
sketch13.addGeometry(Part.LineSegment(App.Vector(2, -9.2, 0), App.Vector(2, -7.7, 0)), False)
sketch13.addGeometry(Part.LineSegment(App.Vector(2, -7.7, 0), App.Vector(1.5, -7.7, 0)), False)
sketch13.addGeometry(Part.LineSegment(App.Vector(1.5, -9.8, 0), App.Vector(1.5, -11.3, 0)), False)
sketch13.addGeometry(Part.LineSegment(App.Vector(1.5, -11.3, 0), App.Vector(2, -11.3, 0)), False)
sketch13.addGeometry(Part.LineSegment(App.Vector(2, -11.3, 0), App.Vector(2, -9.8, 0)), False)
sketch13.addGeometry(Part.LineSegment(App.Vector(2, -9.8, 0), App.Vector(1.5, -9.8, 0)), False)
sketch13.addConstraint(Sketcher.Constraint("Coincident", 0, 2, 1, 1))
sketch13.addConstraint(Sketcher.Constraint("Coincident", 1, 2, 2, 1))
sketch13.addConstraint(Sketcher.Constraint("Coincident", 2, 2, 3, 1))
sketch13.addConstraint(Sketcher.Constraint("Coincident", 3, 2, 0, 1))
sketch13.addConstraint(Sketcher.Constraint("Coincident", 4, 2, 5, 1))
sketch13.addConstraint(Sketcher.Constraint("Coincident", 5, 2, 6, 1))
sketch13.addConstraint(Sketcher.Constraint("Coincident", 6, 2, 7, 1))
sketch13.addConstraint(Sketcher.Constraint("Coincident", 7, 2, 4, 1))
sketch13.addConstraint(Sketcher.Constraint("Coincident", 8, 2, 9, 1))
sketch13.addConstraint(Sketcher.Constraint("Coincident", 9, 2, 10, 1))
sketch13.addConstraint(Sketcher.Constraint("Coincident", 10, 2, 11, 1))
sketch13.addConstraint(Sketcher.Constraint("Coincident", 11, 2, 8, 1))
sketch13.addConstraint(Sketcher.Constraint("Coincident", 12, 2, 13, 1))
sketch13.addConstraint(Sketcher.Constraint("Coincident", 13, 2, 14, 1))
sketch13.addConstraint(Sketcher.Constraint("Coincident", 14, 2, 15, 1))
sketch13.addConstraint(Sketcher.Constraint("Coincident", 15, 2, 12, 1))
sketch13.addConstraint(Sketcher.Constraint("Coincident", 16, 2, 17, 1))
sketch13.addConstraint(Sketcher.Constraint("Coincident", 17, 2, 18, 1))
sketch13.addConstraint(Sketcher.Constraint("Coincident", 18, 2, 19, 1))
sketch13.addConstraint(Sketcher.Constraint("Coincident", 19, 2, 16, 1))
sketch13.addConstraint(Sketcher.Constraint("Vertical", 0))
sketch13.addConstraint(Sketcher.Constraint("Horizontal", 1))
sketch13.addConstraint(Sketcher.Constraint("Vertical", 2))
sketch13.addConstraint(Sketcher.Constraint("Horizontal", 3))
sketch13.addConstraint(Sketcher.Constraint("Vertical", 4))
sketch13.addConstraint(Sketcher.Constraint("Horizontal", 5))
sketch13.addConstraint(Sketcher.Constraint("Vertical", 6))
sketch13.addConstraint(Sketcher.Constraint("Horizontal", 7))
sketch13.addConstraint(Sketcher.Constraint("Vertical", 8))
sketch13.addConstraint(Sketcher.Constraint("Horizontal", 9))
sketch13.addConstraint(Sketcher.Constraint("Vertical", 10))
sketch13.addConstraint(Sketcher.Constraint("Horizontal", 11))
sketch13.addConstraint(Sketcher.Constraint("Vertical", 12))
sketch13.addConstraint(Sketcher.Constraint("Horizontal", 13))
sketch13.addConstraint(Sketcher.Constraint("Vertical", 14))
sketch13.addConstraint(Sketcher.Constraint("Horizontal", 15))
sketch13.addConstraint(Sketcher.Constraint("Vertical", 16))
sketch13.addConstraint(Sketcher.Constraint("Horizontal", 17))
sketch13.addConstraint(Sketcher.Constraint("Vertical", 18))
sketch13.addConstraint(Sketcher.Constraint("Horizontal", 19))
sketch13.addConstraint(Sketcher.Constraint("Vertical", 3, 2, 4, 2))
sketch13.addConstraint(Sketcher.Constraint("Vertical", 2, 2, 5, 2))
sketch13.addConstraint(Sketcher.Constraint("Vertical", 7, 2, 8, 2))
sketch13.addConstraint(Sketcher.Constraint("Vertical", 6, 2, 9, 2))
sketch13.addConstraint(Sketcher.Constraint("Vertical", 11, 2, 12, 2))
sketch13.addConstraint(Sketcher.Constraint("Vertical", 10, 2, 13, 2))
sketch13.addConstraint(Sketcher.Constraint("Vertical", 15, 2, 16, 2))
sketch13.addConstraint(Sketcher.Constraint("Vertical", 14, 2, 17, 2))
sketch13.addConstraint(Sketcher.Constraint("Equal", 2, 4))
sketch13.addConstraint(Sketcher.Constraint("Equal", 6, 8))
sketch13.addConstraint(Sketcher.Constraint("Equal", 10, 12))
sketch13.addConstraint(Sketcher.Constraint("Equal", 14, 16))
sketch13.addConstraint(Sketcher.Constraint("DistanceX", 1, 1, 1, 2, 0.5))
sketch13.addConstraint(Sketcher.Constraint("DistanceY", 0, 2, 0, 1, 1.5))
sketch13.addConstraint(Sketcher.Constraint("DistanceX", -1, 1, 0, 2, 1.5))
sketch13.addConstraint(Sketcher.Constraint("DistanceY", 6, 2, 1, 2, 0.62))
sketch13.addConstraint(Sketcher.Constraint("DistanceY", 10, 2, 5, 2, 0.62))
sketch13.addConstraint(Sketcher.Constraint("DistanceY", 18, 2, 13, 2, 0.62))
sketch13.addConstraint(Sketcher.Constraint("DistanceY", 12, 2, 8, 2, 2.14))
sketch13.addConstraint(Sketcher.Constraint("DistanceY", 0, 2, -1, 1, 2.825))
pad9 = doc.addObject("PartDesign::Pad", "Pad008")
body.addObject(pad9)
pad9.Profile = sketch13
pad9.Length = 5
doc.recompute()

fillet = doc.addObject("PartDesign::Fillet", "Fillet")
body.addObject(fillet)
fillet.Base = (pad9, edges_at(pad9, [
    (2.125, 5.5, 12.175),
    (2.125, 5.5, 0.175),
    (-9.875, 5.5, 12.175),
    (-9.875, 5.5, 0.175),
    (-4, 12.5, 17.175),
    (-4, 12.5, -17.175),
]))
fillet.Radius = 1

doc.recompute()
